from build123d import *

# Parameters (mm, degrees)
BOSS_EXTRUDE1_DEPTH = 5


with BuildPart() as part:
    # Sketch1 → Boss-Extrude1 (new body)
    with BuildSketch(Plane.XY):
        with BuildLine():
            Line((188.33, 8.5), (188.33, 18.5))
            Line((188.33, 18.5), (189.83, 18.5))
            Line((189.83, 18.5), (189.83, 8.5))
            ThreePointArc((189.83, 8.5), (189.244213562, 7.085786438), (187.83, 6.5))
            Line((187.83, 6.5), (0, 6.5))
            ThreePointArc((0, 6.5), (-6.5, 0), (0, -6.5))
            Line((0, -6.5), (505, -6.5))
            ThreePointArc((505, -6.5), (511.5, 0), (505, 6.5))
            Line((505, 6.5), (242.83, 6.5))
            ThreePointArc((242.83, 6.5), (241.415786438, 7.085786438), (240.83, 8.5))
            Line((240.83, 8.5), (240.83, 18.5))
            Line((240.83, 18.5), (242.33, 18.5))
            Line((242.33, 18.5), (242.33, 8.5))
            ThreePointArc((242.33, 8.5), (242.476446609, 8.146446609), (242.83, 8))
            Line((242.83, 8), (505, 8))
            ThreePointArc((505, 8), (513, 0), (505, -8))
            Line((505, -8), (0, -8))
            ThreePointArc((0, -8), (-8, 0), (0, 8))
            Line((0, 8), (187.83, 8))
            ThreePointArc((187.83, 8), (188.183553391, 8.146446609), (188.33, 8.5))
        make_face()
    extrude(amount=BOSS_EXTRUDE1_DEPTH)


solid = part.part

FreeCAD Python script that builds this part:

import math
import FreeCAD as App
import Part
import Sketcher

V = App.Vector

doc = App.newDocument("Part")
body = doc.addObject("PartDesign::Body", "Body")

sketch1 = doc.addObject("Sketcher::SketchObject", "Sketch")
body.addObject(sketch1)
sketch1.AttachmentSupport = (doc.XY_Plane, [""])
sketch1.MapMode = "FlatFace"
sketch1.addGeometry(Part.LineSegment(V(188.33, 18.5, 0), V(188.33, 8.5, 0)), False)
sketch1.addGeometry(Part.ArcOfCircle(Part.Circle(V(187.83, 8.5, 0), V(0, 0, 1), 0.5), math.radians(-90), math.radians(0)), False)
sketch1.addGeometry(Part.LineSegment(V(187.83, 8, 0), V(0, 8, 0)), False)
sketch1.addGeometry(Part.ArcOfCircle(Part.Circle(V(0, 0, 0), V(0, 0, 1), 8), math.radians(90), math.radians(270)), False)
sketch1.addGeometry(Part.LineSegment(V(0, -8, 0), V(505, -8, 0)), False)
sketch1.addGeometry(Part.ArcOfCircle(Part.Circle(V(505, 0, 0), V(0, 0, 1), 8), math.radians(-90), math.radians(90)), False)
sketch1.addGeometry(Part.LineSegment(V(505, 8, 0), V(242.83, 8, 0)), False)
sketch1.addGeometry(Part.ArcOfCircle(Part.Circle(V(242.83, 8.5, 0), V(0, 0, 1), 0.5), math.radians(180), math.radians(270)), False)
sketch1.addGeometry(Part.LineSegment(V(242.33, 8.5, 0), V(242.33, 18.5, 0)), False)
sketch1.addGeometry(Part.LineSegment(V(242.33, 18.5, 0), V(240.83, 18.5, 0)), False)
sketch1.addGeometry(Part.LineSegment(V(240.83, 18.5, 0), V(240.83, 8.5, 0)), False)
sketch1.addGeometry(Part.ArcOfCircle(Part.Circle(V(242.83, 8.5, 0), V(0, 0, 1), 2), math.radians(-180), math.radians(-90)), False)
sketch1.addGeometry(Part.LineSegment(V(242.83, 6.5, 0), V(505, 6.5, 0)), False)
sketch1.addGeometry(Part.ArcOfCircle(Part.Circle(V(505, 0, 0), V(0, 0, 1), 6.5), math.radians(-90), math.radians(90)), False)
sketch1.addGeometry(Part.LineSegment(V(505, -6.5, 0), V(0, -6.5, 0)), False)
sketch1.addGeometry(Part.ArcOfCircle(Part.Circle(V(0, 0, 0), V(0, 0, 1), 6.5), math.radians(90), math.radians(270)), False)
sketch1.addGeometry(Part.LineSegment(V(0, 6.5, 0), V(187.83, 6.5, 0)), False)
sketch1.addGeometry(Part.ArcOfCircle(Part.Circle(V(187.83, 8.5, 0), V(0, 0, 1), 2), math.radians(-90), math.radians(0)), False)
sketch1.addGeometry(Part.LineSegment(V(189.83, 8.5, 0), V(189.83, 18.5, 0)), False)
sketch1.addGeometry(Part.LineSegment(V(189.83, 18.5, 0), V(188.33, 18.5, 0)), False)
sketch1.addConstraint(Sketcher.Constraint("Tangent", 0, 2, 1, 2))
sketch1.addConstraint(Sketcher.Constraint("Tangent", 1, 1, 2, 1))
sketch1.addConstraint(Sketcher.Constraint("Tangent", 2, 2, 3, 1))
sketch1.addConstraint(Sketcher.Constraint("Tangent", 3, 2, 4, 1))
sketch1.addConstraint(Sketcher.Constraint("Tangent", 4, 2, 5, 1))
sketch1.addConstraint(Sketcher.Constraint("Tangent", 5, 2, 6, 1))
sketch1.addConstraint(Sketcher.Constraint("Tangent", 6, 2, 7, 2))
sketch1.addConstraint(Sketcher.Constraint("Tangent", 7, 1, 8, 1))
sketch1.addConstraint(Sketcher.Constraint("Coincident", 8, 2, 9, 1))
sketch1.addConstraint(Sketcher.Constraint("Coincident", 9, 2, 10, 1))
sketch1.addConstraint(Sketcher.Constraint("Tangent", 10, 2, 11, 1))
sketch1.addConstraint(Sketcher.Constraint("Tangent", 11, 2, 12, 1))
sketch1.addConstraint(Sketcher.Constraint("Tangent", 12, 2, 13, 2))
sketch1.addConstraint(Sketcher.Constraint("Tangent", 13, 1, 14, 1))
sketch1.addConstraint(Sketcher.Constraint("Tangent", 14, 2, 15, 2))
sketch1.addConstraint(Sketcher.Constraint("Tangent", 15, 1, 16, 1))
sketch1.addConstraint(Sketcher.Constraint("Tangent", 16, 2, 17, 1))
sketch1.addConstraint(Sketcher.Constraint("Tangent", 17, 2, 18, 1))
sketch1.addConstraint(Sketcher.Constraint("Coincident", 18, 2, 19, 1))
sketch1.addConstraint(Sketcher.Constraint("Coincident", 19, 2, 0, 1))
sketch1.addConstraint(Sketcher.Constraint("Vertical", 0))
sketch1.addConstraint(Sketcher.Constraint("Horizontal", 2))
sketch1.addConstraint(Sketcher.Constraint("Horizontal", 4))
sketch1.addConstraint(Sketcher.Constraint("Horizontal", 6))
sketch1.addConstraint(Sketcher.Constraint("Vertical", 8))
sketch1.addConstraint(Sketcher.Constraint("Horizontal", 9))
sketch1.addConstraint(Sketcher.Constraint("Vertical", 10))
sketch1.addConstraint(Sketcher.Constraint("Horizontal", 12))
sketch1.addConstraint(Sketcher.Constraint("Horizontal", 14))
sketch1.addConstraint(Sketcher.Constraint("Horizontal", 16))
sketch1.addConstraint(Sketcher.Constraint("Vertical", 18))
sketch1.addConstraint(Sketcher.Constraint("Horizontal", 19))
sketch1.addConstraint(Sketcher.Constraint("Coincident", 3, 3, -1, 1))
sketch1.addConstraint(Sketcher.Constraint("Coincident", 15, 3, -1, 1))
sketch1.addConstraint(Sketcher.Constraint("Coincident", 11, 3, 7, 3))
sketch1.addConstraint(Sketcher.Constraint("Coincident", 13, 3, 5, 3))
sketch1.addConstraint(Sketcher.Constraint("Coincident", 17, 3, 1, 3))
sketch1.addConstraint(Sketcher.Constraint("Equal", 3, 5))
sketch1.addConstraint(Sketcher.Constraint("Equal", 1, 7))
sketch1.addConstraint(Sketcher.Constraint("Horizontal", 9, 2, 18, 2))
sketch1.addConstraint(Sketcher.Constraint("Radius", 3, 8.0))
sketch1.addConstraint(Sketcher.Constraint("Radius", 11, 2.0))
sketch1.addConstraint(Sketcher.Constraint("Radius", 1, 0.5))
sketch1.addConstraint(Sketcher.Constraint("DistanceX", 4, 1, 4, 2, 505.0))
sketch1.addConstraint(Sketcher.Constraint("DistanceY", 0, 2, 0, 1, 10.0))
sketch1.addConstraint(Sketcher.Constraint("DistanceX", 1, 3, 7, 3, 55.0))
sketch1.addConstraint(Sketcher.Constraint("DistanceX", 2, 2, 2, 1, 187.83))
pad1 = doc.addObject("PartDesign::Pad", "Pad")
body.addObject(pad1)
pad1.Profile = sketch1
pad1.Length = 5

doc.recompute()
